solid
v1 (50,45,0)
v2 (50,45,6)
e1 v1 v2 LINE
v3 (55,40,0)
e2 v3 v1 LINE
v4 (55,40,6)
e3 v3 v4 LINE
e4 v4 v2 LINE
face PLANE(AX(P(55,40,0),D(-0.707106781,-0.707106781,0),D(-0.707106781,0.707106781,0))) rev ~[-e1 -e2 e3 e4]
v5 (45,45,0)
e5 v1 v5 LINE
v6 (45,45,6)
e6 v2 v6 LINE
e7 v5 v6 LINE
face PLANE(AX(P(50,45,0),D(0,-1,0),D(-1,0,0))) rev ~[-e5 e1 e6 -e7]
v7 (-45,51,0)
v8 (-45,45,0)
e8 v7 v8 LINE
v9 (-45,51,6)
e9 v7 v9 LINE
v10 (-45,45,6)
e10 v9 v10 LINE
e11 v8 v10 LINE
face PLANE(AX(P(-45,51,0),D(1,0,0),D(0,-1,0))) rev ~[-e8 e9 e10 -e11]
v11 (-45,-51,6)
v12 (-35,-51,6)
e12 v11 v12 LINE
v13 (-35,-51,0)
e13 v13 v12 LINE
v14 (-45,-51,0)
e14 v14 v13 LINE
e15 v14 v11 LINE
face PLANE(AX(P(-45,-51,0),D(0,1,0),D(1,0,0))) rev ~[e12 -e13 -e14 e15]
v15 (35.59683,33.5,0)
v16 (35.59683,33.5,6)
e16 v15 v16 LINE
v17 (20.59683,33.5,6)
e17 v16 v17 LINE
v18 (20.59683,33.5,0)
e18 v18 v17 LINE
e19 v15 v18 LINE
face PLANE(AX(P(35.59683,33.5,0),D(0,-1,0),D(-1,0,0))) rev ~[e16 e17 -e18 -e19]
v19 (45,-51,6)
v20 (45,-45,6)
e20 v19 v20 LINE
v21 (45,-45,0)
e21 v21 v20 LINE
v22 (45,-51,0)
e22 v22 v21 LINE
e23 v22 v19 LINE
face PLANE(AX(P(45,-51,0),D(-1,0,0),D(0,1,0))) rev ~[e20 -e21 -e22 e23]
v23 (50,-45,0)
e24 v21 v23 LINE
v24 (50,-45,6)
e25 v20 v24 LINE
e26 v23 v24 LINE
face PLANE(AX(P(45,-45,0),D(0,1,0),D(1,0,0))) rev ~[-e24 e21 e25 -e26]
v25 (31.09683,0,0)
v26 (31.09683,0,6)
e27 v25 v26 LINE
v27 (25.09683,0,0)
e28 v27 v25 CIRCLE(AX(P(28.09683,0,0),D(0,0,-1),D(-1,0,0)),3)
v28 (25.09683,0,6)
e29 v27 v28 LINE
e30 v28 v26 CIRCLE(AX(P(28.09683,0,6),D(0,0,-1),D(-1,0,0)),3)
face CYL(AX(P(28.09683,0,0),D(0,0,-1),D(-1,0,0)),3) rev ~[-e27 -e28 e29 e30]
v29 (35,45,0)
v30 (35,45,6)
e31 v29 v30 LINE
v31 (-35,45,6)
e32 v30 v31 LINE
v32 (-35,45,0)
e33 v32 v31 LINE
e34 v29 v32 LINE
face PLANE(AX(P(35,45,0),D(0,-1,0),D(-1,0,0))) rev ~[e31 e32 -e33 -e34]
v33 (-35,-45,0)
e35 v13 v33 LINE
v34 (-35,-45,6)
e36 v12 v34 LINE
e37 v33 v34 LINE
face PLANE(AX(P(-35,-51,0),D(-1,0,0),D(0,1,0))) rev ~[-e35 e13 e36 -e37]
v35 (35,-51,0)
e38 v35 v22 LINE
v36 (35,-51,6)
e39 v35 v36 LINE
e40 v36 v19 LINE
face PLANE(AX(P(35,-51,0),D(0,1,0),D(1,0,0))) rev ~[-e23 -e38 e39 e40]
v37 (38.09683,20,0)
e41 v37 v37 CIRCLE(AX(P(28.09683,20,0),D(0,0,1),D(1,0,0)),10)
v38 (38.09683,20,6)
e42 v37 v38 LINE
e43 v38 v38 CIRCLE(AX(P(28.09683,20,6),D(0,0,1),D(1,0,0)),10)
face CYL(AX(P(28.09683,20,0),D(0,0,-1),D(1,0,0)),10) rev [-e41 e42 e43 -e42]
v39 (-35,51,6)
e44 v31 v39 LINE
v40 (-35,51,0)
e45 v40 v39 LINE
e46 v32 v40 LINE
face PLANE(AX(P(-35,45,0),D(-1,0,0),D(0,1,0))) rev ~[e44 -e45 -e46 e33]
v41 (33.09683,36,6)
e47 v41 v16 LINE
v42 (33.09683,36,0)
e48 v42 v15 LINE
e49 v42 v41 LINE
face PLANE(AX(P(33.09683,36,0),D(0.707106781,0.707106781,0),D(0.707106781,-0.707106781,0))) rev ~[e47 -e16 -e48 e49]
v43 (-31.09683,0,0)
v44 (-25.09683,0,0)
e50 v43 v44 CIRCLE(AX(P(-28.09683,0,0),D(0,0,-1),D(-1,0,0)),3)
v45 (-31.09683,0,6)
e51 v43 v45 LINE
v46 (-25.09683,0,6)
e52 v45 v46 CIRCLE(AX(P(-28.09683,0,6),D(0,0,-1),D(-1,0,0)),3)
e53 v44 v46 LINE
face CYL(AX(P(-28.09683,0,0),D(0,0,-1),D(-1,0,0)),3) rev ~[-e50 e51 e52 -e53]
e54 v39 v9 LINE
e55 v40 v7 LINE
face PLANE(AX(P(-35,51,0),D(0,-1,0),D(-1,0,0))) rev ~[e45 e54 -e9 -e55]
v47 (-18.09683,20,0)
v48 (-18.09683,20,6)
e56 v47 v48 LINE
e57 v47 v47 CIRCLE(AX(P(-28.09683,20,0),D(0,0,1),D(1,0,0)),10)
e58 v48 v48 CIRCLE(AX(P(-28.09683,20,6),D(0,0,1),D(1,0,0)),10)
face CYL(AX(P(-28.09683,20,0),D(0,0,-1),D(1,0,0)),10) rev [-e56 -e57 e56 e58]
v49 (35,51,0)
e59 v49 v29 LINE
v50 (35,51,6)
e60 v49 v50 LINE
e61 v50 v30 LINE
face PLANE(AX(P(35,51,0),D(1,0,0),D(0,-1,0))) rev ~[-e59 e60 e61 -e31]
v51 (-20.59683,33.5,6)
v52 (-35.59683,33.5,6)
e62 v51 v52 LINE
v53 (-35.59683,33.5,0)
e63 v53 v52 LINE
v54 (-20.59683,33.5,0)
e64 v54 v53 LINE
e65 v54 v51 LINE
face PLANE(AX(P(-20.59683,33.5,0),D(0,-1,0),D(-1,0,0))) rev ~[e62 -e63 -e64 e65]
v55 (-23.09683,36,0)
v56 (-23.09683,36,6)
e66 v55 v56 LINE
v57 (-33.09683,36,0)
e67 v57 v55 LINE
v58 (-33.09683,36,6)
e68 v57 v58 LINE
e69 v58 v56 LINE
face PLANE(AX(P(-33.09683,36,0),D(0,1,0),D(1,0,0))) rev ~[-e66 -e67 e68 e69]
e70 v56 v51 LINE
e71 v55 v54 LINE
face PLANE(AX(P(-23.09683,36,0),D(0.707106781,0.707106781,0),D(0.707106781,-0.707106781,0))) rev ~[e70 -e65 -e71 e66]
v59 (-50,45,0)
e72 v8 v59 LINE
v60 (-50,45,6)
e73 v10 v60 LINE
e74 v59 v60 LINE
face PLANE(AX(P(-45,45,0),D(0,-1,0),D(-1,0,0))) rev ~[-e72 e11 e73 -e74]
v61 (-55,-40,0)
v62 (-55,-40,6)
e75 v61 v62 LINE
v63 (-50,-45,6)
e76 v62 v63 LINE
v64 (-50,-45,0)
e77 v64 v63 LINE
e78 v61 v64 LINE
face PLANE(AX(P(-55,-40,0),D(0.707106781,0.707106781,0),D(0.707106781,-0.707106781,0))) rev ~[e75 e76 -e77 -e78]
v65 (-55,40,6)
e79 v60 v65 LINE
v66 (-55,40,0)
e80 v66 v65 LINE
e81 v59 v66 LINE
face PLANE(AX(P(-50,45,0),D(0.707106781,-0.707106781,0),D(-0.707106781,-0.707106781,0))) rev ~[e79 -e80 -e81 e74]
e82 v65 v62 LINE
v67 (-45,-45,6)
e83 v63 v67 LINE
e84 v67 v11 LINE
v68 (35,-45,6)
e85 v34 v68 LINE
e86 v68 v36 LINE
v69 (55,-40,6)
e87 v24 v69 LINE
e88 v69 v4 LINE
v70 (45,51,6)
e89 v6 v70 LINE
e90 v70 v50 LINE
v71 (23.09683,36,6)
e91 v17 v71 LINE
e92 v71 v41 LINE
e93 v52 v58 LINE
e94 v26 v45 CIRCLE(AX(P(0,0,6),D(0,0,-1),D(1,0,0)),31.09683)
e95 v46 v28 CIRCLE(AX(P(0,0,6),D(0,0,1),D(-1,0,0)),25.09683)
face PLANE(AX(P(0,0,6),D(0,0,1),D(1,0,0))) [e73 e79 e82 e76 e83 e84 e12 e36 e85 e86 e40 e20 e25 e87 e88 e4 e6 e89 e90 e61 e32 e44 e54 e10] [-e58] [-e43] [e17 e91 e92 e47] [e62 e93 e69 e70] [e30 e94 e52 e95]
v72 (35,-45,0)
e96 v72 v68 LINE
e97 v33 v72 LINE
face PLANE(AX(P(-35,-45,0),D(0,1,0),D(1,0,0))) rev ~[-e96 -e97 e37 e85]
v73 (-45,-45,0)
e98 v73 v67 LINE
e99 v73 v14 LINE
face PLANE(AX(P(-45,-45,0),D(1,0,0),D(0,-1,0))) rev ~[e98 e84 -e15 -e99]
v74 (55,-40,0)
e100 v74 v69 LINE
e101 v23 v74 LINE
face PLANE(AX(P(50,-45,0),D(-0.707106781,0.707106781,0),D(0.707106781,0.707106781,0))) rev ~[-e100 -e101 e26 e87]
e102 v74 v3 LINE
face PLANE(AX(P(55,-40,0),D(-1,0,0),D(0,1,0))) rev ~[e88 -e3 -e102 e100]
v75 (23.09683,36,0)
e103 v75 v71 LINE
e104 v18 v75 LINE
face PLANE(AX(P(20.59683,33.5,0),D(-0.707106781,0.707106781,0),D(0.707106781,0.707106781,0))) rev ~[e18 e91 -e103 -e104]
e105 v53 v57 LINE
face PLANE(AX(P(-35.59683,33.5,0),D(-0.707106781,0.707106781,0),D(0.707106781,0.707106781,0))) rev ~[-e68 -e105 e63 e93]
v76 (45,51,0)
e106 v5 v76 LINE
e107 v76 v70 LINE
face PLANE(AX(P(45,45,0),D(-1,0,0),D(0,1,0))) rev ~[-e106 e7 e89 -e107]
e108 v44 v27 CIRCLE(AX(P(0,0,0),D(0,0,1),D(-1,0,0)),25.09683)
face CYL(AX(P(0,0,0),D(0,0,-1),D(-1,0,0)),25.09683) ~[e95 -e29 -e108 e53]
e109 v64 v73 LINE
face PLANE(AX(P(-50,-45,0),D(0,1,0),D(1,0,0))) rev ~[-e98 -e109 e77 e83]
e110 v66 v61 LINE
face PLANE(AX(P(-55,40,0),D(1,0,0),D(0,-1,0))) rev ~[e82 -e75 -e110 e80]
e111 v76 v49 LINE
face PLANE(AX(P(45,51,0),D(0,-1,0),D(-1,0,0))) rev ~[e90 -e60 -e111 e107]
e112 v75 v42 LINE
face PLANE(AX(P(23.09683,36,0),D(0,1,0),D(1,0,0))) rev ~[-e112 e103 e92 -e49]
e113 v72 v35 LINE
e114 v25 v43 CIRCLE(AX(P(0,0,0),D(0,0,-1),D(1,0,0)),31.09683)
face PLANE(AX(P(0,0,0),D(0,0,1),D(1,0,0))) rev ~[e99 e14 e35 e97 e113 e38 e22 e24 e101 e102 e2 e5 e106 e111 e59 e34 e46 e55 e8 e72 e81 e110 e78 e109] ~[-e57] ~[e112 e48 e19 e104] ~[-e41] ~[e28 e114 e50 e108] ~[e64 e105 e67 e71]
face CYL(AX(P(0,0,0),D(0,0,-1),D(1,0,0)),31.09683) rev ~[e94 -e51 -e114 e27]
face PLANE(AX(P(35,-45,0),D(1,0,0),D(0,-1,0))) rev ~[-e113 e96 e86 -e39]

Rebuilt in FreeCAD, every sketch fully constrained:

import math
import FreeCAD as App
import Part
import Sketcher
from FreeCAD import Vector
Q = App.Units.Quantity

doc = App.newDocument("Part")
body = doc.addObject("PartDesign::Body", "Body")

# Sketch on XY plane
sketch1 = body.newObject("Sketcher::SketchObject", "Sketch")
sketch1.AttachmentSupport = (doc.getObject("XY_Plane"), [""])
sketch1.MapMode = "FlatFace"
sketch1.addGeometry(Part.LineSegment(Vector(-35, 51, 0), Vector(-45, 51, 0)), False)
sketch1.addGeometry(Part.LineSegment(Vector(-45, 51, 0), Vector(-45, 45, 0)), False)
sketch1.addGeometry(Part.LineSegment(Vector(-45, 45, 0), Vector(-50, 45, 0)), False)
sketch1.addGeometry(Part.LineSegment(Vector(-50, 45, 0), Vector(-55, 40, 0)), False)
sketch1.addGeometry(Part.LineSegment(Vector(-55, 40, 0), Vector(-55, -40, 0)), False)
sketch1.addGeometry(Part.LineSegment(Vector(-55, -40, 0), Vector(-50, -45, 0)), False)
sketch1.addGeometry(Part.LineSegment(Vector(-50, -45, 0), Vector(-45, -45, 0)), False)
sketch1.addGeometry(Part.LineSegment(Vector(-45, -45, 0), Vector(-45, -51, 0)), False)
sketch1.addGeometry(Part.LineSegment(Vector(-45, -51, 0), Vector(-35, -51, 0)), False)
sketch1.addGeometry(Part.LineSegment(Vector(-35, -51, 0), Vector(-35, -45, 0)), False)
sketch1.addGeometry(Part.LineSegment(Vector(-35, -45, 0), Vector(35, -45, 0)), False)
sketch1.addGeometry(Part.LineSegment(Vector(35, -45, 0), Vector(35, -51, 0)), False)
sketch1.addGeometry(Part.LineSegment(Vector(35, -51, 0), Vector(45, -51, 0)), False)
sketch1.addGeometry(Part.LineSegment(Vector(45, -51, 0), Vector(45, -45, 0)), False)
sketch1.addGeometry(Part.LineSegment(Vector(45, -45, 0), Vector(50, -45, 0)), False)
sketch1.addGeometry(Part.LineSegment(Vector(50, -45, 0), Vector(55, -40, 0)), False)
sketch1.addGeometry(Part.LineSegment(Vector(55, -40, 0), Vector(55, 40, 0)), False)
sketch1.addGeometry(Part.LineSegment(Vector(55, 40, 0), Vector(50, 45, 0)), False)
sketch1.addGeometry(Part.LineSegment(Vector(50, 45, 0), Vector(45, 45, 0)), False)
sketch1.addGeometry(Part.LineSegment(Vector(45, 45, 0), Vector(45, 51, 0)), False)
sketch1.addGeometry(Part.LineSegment(Vector(45, 51, 0), Vector(35, 51, 0)), False)
sketch1.addGeometry(Part.LineSegment(Vector(35, 51, 0), Vector(35, 45, 0)), False)
sketch1.addGeometry(Part.LineSegment(Vector(35, 45, 0), Vector(-35, 45, 0)), False)
sketch1.addGeometry(Part.LineSegment(Vector(-35, 45, 0), Vector(-35, 51, 0)), False)
sketch1.addGeometry(Part.ArcOfCircle(Part.Circle(Vector(28.1, 0, 0), Vector(0, 0, 1), 3), math.radians(0), math.radians(180)), False)
sketch1.addGeometry(Part.ArcOfCircle(Part.Circle(Vector(0, 0, 0), Vector(0, 0, 1), 31.1), math.radians(180), math.radians(360)), False)
sketch1.addGeometry(Part.ArcOfCircle(Part.Circle(Vector(-28.1, 0, 0), Vector(0, 0, 1), 3), math.radians(0), math.radians(180)), False)
sketch1.addGeometry(Part.ArcOfCircle(Part.Circle(Vector(0, 0, 0), Vector(0, 0, 1), 25.1), math.radians(180), math.radians(360)), False)
sketch1.addGeometry(Part.Circle(Vector(-28.1, 20, 0), Vector(0, 0, 1), 10), False)
sketch1.addGeometry(Part.LineSegment(Vector(-20.6, 33.5, 0), Vector(-35.6, 33.5, 0)), False)
sketch1.addGeometry(Part.LineSegment(Vector(-35.6, 33.5, 0), Vector(-33.1, 36, 0)), False)
sketch1.addGeometry(Part.LineSegment(Vector(-33.1, 36, 0), Vector(-23.1, 36, 0)), False)
sketch1.addGeometry(Part.LineSegment(Vector(-23.1, 36, 0), Vector(-20.6, 33.5, 0)), False)
sketch1.addGeometry(Part.Circle(Vector(28.1, 20, 0), Vector(0, 0, 1), 10), False)
sketch1.addGeometry(Part.LineSegment(Vector(23.1, 36, 0), Vector(33.1, 36, 0)), False)
sketch1.addGeometry(Part.LineSegment(Vector(33.1, 36, 0), Vector(35.6, 33.5, 0)), False)
sketch1.addGeometry(Part.LineSegment(Vector(35.6, 33.5, 0), Vector(20.6, 33.5, 0)), False)
sketch1.addGeometry(Part.LineSegment(Vector(20.6, 33.5, 0), Vector(23.1, 36, 0)), False)
sketch1.addConstraint(Sketcher.Constraint("Coincident", 0, 2, 1, 1))
sketch1.addConstraint(Sketcher.Constraint("Coincident", 1, 2, 2, 1))
sketch1.addConstraint(Sketcher.Constraint("Coincident", 2, 2, 3, 1))
sketch1.addConstraint(Sketcher.Constraint("Coincident", 3, 2, 4, 1))
sketch1.addConstraint(Sketcher.Constraint("Coincident", 4, 2, 5, 1))
sketch1.addConstraint(Sketcher.Constraint("Coincident", 5, 2, 6, 1))
sketch1.addConstraint(Sketcher.Constraint("Coincident", 6, 2, 7, 1))
sketch1.addConstraint(Sketcher.Constraint("Coincident", 7, 2, 8, 1))
sketch1.addConstraint(Sketcher.Constraint("Coincident", 8, 2, 9, 1))
sketch1.addConstraint(Sketcher.Constraint("Coincident", 9, 2, 10, 1))
sketch1.addConstraint(Sketcher.Constraint("Coincident", 10, 2, 11, 1))
sketch1.addConstraint(Sketcher.Constraint("Coincident", 11, 2, 12, 1))
sketch1.addConstraint(Sketcher.Constraint("Coincident", 12, 2, 13, 1))
sketch1.addConstraint(Sketcher.Constraint("Coincident", 13, 2, 14, 1))
sketch1.addConstraint(Sketcher.Constraint("Coincident", 14, 2, 15, 1))
sketch1.addConstraint(Sketcher.Constraint("Coincident", 15, 2, 16, 1))
sketch1.addConstraint(Sketcher.Constraint("Coincident", 16, 2, 17, 1))
sketch1.addConstraint(Sketcher.Constraint("Coincident", 17, 2, 18, 1))
sketch1.addConstraint(Sketcher.Constraint("Coincident", 18, 2, 19, 1))
sketch1.addConstraint(Sketcher.Constraint("Coincident", 19, 2, 20, 1))
sketch1.addConstraint(Sketcher.Constraint("Coincident", 20, 2, 21, 1))
sketch1.addConstraint(Sketcher.Constraint("Coincident", 21, 2, 22, 1))
sketch1.addConstraint(Sketcher.Constraint("Coincident", 22, 2, 23, 1))
sketch1.addConstraint(Sketcher.Constraint("Coincident", 23, 2, 0, 1))
sketch1.addConstraint(Sketcher.Constraint("Tangent", 24, 1, 25, 2))
sketch1.addConstraint(Sketcher.Constraint("Tangent", 25, 1, 26, 2))
sketch1.addConstraint(Sketcher.Constraint("Tangent", 26, 1, 27, 1))
sketch1.addConstraint(Sketcher.Constraint("Tangent", 27, 2, 24, 2))
sketch1.addConstraint(Sketcher.Constraint("Coincident", 29, 2, 30, 1))
sketch1.addConstraint(Sketcher.Constraint("Coincident", 30, 2, 31, 1))
sketch1.addConstraint(Sketcher.Constraint("Coincident", 31, 2, 32, 1))
sketch1.addConstraint(Sketcher.Constraint("Coincident", 32, 2, 29, 1))
sketch1.addConstraint(Sketcher.Constraint("Coincident", 34, 2, 35, 1))
sketch1.addConstraint(Sketcher.Constraint("Coincident", 35, 2, 36, 1))
sketch1.addConstraint(Sketcher.Constraint("Coincident", 36, 2, 37, 1))
sketch1.addConstraint(Sketcher.Constraint("Coincident", 37, 2, 34, 1))
sketch1.addConstraint(Sketcher.Constraint("Horizontal", 0))
sketch1.addConstraint(Sketcher.Constraint("Vertical", 1))
sketch1.addConstraint(Sketcher.Constraint("Horizontal", 2))
sketch1.addConstraint(Sketcher.Constraint("Vertical", 4))
sketch1.addConstraint(Sketcher.Constraint("Horizontal", 6))
sketch1.addConstraint(Sketcher.Constraint("Vertical", 7))
sketch1.addConstraint(Sketcher.Constraint("Horizontal", 8))
sketch1.addConstraint(Sketcher.Constraint("Vertical", 9))
sketch1.addConstraint(Sketcher.Constraint("Horizontal", 10))
sketch1.addConstraint(Sketcher.Constraint("Vertical", 11))
sketch1.addConstraint(Sketcher.Constraint("Horizontal", 12))
sketch1.addConstraint(Sketcher.Constraint("Vertical", 13))
sketch1.addConstraint(Sketcher.Constraint("Horizontal", 14))
sketch1.addConstraint(Sketcher.Constraint("Vertical", 16))
sketch1.addConstraint(Sketcher.Constraint("Horizontal", 18))
sketch1.addConstraint(Sketcher.Constraint("Vertical", 19))
sketch1.addConstraint(Sketcher.Constraint("Horizontal", 20))
sketch1.addConstraint(Sketcher.Constraint("Vertical", 21))
sketch1.addConstraint(Sketcher.Constraint("Horizontal", 22))
sketch1.addConstraint(Sketcher.Constraint("Vertical", 23))
sketch1.addConstraint(Sketcher.Constraint("Horizontal", 29))
sketch1.addConstraint(Sketcher.Constraint("Horizontal", 31))
sketch1.addConstraint(Sketcher.Constraint("Horizontal", 34))
sketch1.addConstraint(Sketcher.Constraint("Horizontal", 36))
sketch1.addConstraint(Sketcher.Constraint("Coincident", 25, 3, -1, 1))
sketch1.addConstraint(Sketcher.Constraint("Coincident", 27, 3, -1, 1))
sketch1.addConstraint(Sketcher.Constraint("Equal", 28, 33))
sketch1.addConstraint(Sketcher.Constraint("Symmetric", 0, 2, 12, 2, -1, 1))
sketch1.addConstraint(Sketcher.Constraint("Symmetric", 2, 2, 14, 2, -1, 1))
sketch1.addConstraint(Sketcher.Constraint("Symmetric", 3, 2, 15, 2, -1, 1))
sketch1.addConstraint(Sketcher.Constraint("Symmetric", 5, 2, 17, 2, -1, 1))
sketch1.addConstraint(Sketcher.Constraint("Symmetric", 7, 2, 19, 2, -1, 1))
sketch1.addConstraint(Sketcher.Constraint("Symmetric", 9, 2, 21, 2, -1, 1))
sketch1.addConstraint(Sketcher.Constraint("Symmetric", 28, 3, 33, 3, -2))
sketch1.addConstraint(Sketcher.Constraint("Symmetric", 8, 2, 11, 2, -2))
sketch1.addConstraint(Sketcher.Constraint("Symmetric", 6, 2, 13, 2, -2))
sketch1.addConstraint(Sketcher.Constraint("Symmetric", 30, 2, 34, 2, -2))
sketch1.addConstraint(Sketcher.Constraint("Symmetric", 29, 2, 35, 2, -2))
sketch1.addConstraint(Sketcher.Constraint("PointOnObject", 24, 3, -1))
sketch1.addConstraint(Sketcher.Constraint("PointOnObject", 26, 3, -1))
sketch1.addConstraint(Sketcher.Constraint("Perpendicular", 3, 5))
sketch1.addConstraint(Sketcher.Constraint("Perpendicular", 15, 17))
sketch1.addConstraint(Sketcher.Constraint("Perpendicular", 17, 30))
sketch1.addConstraint(Sketcher.Constraint("Perpendicular", 30, 32))
sketch1.addConstraint(Sketcher.Constraint("Parallel", 32, 35))
sketch1.addConstraint(Sketcher.Constraint("Perpendicular", 35, 37))
sketch1.addConstraint(Sketcher.Constraint("Horizontal", 6, 2, 9, 2))
sketch1.addConstraint(Sketcher.Constraint("Horizontal", 4, 2, 15, 2))
sketch1.addConstraint(Sketcher.Constraint("Vertical", 26, 3, 28, 3))
sketch1.addConstraint(Sketcher.Constraint("Vertical", 9, 2, 22, 2))
sketch1.addConstraint(Sketcher.Constraint("Equal", 20, 31))
sketch1.addConstraint(Sketcher.Constraint("Equal", 31, 34))
sketch1.addConstraint(Sketcher.Constraint("Diameter", 28, Q("20 mm")))
sketch1.addConstraint(Sketcher.Constraint("Radius", 24, Q("3 mm")))
sketch1.addConstraint(Sketcher.Constraint("DistanceX", 0, 2, 0, 1, Q("10 mm")))
sketch1.addConstraint(Sketcher.Constraint("DistanceX", 2, 2, 2, 1, Q("5 mm")))
sketch1.addConstraint(Sketcher.Constraint("DistanceX", 10, 1, 10, 2, Q("70 mm")))
sketch1.addConstraint(Sketcher.Constraint("DistanceX", 29, 2, 29, 1, Q("15 mm")))
sketch1.addConstraint(Sketcher.Constraint("DistanceY", 1, 2, 1, 1, Q("6 mm")))
sketch1.addConstraint(Sketcher.Constraint("DistanceY", 4, 2, 4, 1, Q("80 mm")))
sketch1.addConstraint(Sketcher.Constraint("DistanceY", -1, 1, 28, 3, Q("20 mm")))
sketch1.addConstraint(Sketcher.Constraint("DistanceY", -1, 1, 0, 2, Q("51 mm")))
sketch1.addConstraint(Sketcher.Constraint("DistanceY", -1, 1, 30, 2, Q("36 mm")))
sketch1.addConstraint(Sketcher.Constraint("DistanceX", 30, 2, 28, 3, Q("5 mm")))
sketch1.addConstraint(Sketcher.Constraint("Radius", 25, Q("31.09683 mm")))
pad1 = body.newObject("PartDesign::Pad", "Pad")
pad1.Profile = sketch1
pad1.Length = 6

doc.recompute()
